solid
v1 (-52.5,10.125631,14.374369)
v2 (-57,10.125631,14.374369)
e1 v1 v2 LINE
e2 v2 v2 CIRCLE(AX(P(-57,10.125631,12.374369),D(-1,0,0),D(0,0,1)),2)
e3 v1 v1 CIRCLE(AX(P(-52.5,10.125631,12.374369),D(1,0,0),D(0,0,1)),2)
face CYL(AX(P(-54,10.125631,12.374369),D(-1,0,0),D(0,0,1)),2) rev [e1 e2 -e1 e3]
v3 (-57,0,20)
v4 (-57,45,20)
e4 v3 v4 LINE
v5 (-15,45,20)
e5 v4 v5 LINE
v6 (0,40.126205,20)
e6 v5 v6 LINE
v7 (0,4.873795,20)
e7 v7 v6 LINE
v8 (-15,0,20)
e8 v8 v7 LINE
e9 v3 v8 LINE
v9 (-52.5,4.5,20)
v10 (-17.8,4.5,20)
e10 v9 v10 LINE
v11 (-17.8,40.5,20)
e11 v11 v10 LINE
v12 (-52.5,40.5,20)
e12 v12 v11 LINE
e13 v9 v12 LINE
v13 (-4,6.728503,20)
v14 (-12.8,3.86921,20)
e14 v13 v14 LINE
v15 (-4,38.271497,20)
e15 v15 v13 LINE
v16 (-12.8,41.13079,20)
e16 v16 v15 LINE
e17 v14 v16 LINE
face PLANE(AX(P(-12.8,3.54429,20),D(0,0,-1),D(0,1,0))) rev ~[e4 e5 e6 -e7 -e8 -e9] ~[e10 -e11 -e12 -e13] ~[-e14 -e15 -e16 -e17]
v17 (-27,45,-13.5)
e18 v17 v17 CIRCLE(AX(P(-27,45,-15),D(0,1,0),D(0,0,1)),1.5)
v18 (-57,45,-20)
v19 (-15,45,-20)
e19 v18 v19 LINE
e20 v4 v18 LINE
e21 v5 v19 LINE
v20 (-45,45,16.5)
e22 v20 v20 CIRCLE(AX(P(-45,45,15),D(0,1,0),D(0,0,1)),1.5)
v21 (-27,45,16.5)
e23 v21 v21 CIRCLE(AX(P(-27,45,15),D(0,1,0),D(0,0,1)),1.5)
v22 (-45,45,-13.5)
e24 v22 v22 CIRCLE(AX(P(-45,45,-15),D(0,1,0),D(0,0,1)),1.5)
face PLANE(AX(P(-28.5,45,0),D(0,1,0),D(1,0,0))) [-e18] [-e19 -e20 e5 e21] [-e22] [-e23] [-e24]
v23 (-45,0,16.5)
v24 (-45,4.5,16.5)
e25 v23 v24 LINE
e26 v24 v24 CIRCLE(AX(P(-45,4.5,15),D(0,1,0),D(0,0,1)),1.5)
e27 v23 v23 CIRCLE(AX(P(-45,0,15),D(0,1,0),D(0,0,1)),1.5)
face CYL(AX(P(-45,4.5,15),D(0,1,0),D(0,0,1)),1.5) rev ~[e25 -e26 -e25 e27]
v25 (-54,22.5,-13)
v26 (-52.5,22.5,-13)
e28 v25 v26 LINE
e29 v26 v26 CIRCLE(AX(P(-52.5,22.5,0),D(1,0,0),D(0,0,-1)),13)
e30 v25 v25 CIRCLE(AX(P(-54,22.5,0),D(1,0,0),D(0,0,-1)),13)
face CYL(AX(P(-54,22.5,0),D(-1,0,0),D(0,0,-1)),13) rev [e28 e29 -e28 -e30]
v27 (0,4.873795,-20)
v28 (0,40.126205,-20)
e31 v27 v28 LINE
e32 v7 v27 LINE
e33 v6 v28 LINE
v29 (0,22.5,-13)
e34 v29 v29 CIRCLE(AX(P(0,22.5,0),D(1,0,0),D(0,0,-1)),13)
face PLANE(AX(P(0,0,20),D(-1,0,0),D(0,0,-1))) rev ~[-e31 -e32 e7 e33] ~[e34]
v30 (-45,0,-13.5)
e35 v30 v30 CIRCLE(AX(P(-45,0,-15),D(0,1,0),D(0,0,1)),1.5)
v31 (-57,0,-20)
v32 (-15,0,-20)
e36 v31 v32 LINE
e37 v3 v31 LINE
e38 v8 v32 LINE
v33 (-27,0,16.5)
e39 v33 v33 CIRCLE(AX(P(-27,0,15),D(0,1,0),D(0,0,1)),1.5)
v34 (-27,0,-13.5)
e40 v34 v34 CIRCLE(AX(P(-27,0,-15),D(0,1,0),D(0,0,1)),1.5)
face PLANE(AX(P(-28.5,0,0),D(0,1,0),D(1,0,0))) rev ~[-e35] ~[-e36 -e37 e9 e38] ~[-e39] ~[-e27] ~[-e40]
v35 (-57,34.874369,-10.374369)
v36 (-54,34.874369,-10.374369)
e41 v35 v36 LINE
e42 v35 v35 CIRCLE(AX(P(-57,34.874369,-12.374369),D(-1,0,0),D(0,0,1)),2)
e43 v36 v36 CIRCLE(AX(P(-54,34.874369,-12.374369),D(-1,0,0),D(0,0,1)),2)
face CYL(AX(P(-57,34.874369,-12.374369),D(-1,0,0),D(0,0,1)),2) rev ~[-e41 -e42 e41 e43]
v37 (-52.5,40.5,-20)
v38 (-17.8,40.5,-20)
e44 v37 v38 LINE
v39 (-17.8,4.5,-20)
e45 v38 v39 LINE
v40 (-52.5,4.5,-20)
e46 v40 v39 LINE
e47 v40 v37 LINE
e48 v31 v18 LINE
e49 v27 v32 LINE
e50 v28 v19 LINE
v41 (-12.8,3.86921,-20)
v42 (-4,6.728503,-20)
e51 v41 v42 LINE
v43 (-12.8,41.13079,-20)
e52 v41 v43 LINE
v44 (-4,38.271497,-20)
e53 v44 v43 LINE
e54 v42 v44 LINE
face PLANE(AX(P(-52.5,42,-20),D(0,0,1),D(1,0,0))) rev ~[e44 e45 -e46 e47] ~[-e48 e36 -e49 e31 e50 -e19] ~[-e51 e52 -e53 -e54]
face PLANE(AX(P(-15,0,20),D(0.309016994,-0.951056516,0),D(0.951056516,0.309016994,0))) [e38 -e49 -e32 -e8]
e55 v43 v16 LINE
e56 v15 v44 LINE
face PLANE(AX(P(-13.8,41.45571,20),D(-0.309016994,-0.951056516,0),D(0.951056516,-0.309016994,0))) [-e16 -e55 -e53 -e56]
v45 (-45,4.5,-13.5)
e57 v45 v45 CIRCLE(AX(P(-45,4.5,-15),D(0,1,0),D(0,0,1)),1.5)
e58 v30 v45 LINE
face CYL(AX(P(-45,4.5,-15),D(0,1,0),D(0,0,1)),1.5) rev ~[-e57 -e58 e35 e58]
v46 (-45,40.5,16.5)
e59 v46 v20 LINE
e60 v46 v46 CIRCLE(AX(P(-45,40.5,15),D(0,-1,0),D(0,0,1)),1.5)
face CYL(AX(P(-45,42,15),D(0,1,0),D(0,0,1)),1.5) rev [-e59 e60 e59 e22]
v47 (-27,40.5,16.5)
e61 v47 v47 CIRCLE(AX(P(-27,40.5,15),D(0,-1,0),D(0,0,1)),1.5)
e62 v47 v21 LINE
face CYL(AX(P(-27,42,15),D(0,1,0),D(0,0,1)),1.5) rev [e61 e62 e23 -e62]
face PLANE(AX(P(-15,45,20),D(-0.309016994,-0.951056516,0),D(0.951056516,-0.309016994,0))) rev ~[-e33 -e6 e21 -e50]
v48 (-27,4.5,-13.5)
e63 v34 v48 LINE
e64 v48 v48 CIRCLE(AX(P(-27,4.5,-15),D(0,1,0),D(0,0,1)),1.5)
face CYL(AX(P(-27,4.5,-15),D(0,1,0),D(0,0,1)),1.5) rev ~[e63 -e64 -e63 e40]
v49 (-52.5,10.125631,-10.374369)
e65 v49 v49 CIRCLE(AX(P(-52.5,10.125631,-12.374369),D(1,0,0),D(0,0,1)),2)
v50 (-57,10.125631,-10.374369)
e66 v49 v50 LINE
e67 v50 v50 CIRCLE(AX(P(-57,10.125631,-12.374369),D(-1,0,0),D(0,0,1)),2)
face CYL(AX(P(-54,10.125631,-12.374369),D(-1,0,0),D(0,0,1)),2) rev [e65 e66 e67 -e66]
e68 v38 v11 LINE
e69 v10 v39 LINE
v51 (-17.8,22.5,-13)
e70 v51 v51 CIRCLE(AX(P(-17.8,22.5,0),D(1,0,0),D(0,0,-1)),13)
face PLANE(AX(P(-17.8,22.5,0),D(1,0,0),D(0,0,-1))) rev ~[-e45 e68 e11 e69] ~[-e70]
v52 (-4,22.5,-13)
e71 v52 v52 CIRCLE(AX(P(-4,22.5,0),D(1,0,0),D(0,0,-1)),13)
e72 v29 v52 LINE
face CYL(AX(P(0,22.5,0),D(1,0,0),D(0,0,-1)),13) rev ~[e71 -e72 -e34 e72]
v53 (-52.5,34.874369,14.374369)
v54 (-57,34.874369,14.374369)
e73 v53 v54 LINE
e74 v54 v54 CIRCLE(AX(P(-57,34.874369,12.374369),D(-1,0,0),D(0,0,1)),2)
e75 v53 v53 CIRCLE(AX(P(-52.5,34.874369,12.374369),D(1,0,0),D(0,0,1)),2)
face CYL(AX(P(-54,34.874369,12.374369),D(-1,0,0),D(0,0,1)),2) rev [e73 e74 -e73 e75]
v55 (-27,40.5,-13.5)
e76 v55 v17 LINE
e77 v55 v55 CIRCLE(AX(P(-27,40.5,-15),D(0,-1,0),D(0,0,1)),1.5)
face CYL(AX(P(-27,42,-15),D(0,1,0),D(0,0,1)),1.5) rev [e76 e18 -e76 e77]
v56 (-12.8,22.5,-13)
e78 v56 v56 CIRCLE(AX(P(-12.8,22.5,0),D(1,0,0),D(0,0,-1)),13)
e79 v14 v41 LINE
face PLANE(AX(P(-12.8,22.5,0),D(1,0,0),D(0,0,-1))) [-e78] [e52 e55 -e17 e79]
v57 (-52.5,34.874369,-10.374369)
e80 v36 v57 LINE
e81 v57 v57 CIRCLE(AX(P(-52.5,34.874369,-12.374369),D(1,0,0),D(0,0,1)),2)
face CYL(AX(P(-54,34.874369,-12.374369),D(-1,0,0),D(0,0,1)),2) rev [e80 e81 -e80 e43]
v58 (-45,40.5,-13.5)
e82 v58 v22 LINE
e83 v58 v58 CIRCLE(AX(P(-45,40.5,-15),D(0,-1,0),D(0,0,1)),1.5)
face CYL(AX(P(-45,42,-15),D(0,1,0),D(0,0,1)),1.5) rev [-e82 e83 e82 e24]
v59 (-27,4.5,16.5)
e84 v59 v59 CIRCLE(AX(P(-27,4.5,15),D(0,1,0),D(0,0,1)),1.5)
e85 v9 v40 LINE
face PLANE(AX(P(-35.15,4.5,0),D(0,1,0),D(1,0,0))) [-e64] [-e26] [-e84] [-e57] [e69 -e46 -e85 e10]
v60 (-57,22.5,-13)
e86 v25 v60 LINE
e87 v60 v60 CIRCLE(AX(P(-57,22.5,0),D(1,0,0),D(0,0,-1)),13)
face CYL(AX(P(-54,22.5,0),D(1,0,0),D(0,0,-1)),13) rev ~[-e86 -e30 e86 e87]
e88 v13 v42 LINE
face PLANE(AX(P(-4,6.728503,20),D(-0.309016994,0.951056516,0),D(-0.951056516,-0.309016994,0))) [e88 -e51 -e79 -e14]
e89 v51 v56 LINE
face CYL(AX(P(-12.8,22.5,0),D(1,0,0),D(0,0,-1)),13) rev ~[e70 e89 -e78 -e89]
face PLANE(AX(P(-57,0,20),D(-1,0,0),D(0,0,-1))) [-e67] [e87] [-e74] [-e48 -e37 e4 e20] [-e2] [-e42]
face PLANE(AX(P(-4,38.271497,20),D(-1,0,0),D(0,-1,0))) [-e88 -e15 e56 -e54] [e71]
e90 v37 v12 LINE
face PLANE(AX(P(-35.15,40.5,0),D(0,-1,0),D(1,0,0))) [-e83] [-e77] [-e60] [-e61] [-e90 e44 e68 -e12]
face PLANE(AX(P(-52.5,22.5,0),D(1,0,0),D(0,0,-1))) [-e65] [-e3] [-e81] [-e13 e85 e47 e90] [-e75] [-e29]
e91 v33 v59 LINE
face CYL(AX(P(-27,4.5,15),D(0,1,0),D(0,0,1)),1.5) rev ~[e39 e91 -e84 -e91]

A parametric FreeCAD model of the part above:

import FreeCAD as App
import Part
import Sketcher
Q = App.Units.Quantity

doc = App.newDocument("Part")
body = doc.addObject("PartDesign::Body", "Body")

# Sketch on XZ plane
sketch1 = body.newObject("Sketcher::SketchObject", "Sketch")
sketch1.AttachmentSupport = (doc.getObject("XZ_Plane"), [""])
sketch1.MapMode = "FlatFace"
sketch1.addGeometry(Part.LineSegment(App.Vector(-57, -20, 0), App.Vector(-57, 20, 0)), False)
sketch1.addGeometry(Part.LineSegment(App.Vector(-57, 20, 0), App.Vector(0, 20, 0)), False)
sketch1.addGeometry(Part.LineSegment(App.Vector(0, 20, 0), App.Vector(0, -20, 0)), False)
sketch1.addGeometry(Part.LineSegment(App.Vector(0, -20, 0), App.Vector(-57, -20, 0)), False)
sketch1.addConstraint(Sketcher.Constraint("Coincident", 0, 2, 1, 1))
sketch1.addConstraint(Sketcher.Constraint("Coincident", 1, 2, 2, 1))
sketch1.addConstraint(Sketcher.Constraint("Coincident", 2, 2, 3, 1))
sketch1.addConstraint(Sketcher.Constraint("Coincident", 3, 2, 0, 1))
sketch1.addConstraint(Sketcher.Constraint("Vertical", 0))
sketch1.addConstraint(Sketcher.Constraint("Horizontal", 1))
sketch1.addConstraint(Sketcher.Constraint("Vertical", 2))
sketch1.addConstraint(Sketcher.Constraint("Horizontal", 3))
sketch1.addConstraint(Sketcher.Constraint("Symmetric", 1, 2, 2, 2, -1, 1))
sketch1.addConstraint(Sketcher.Constraint("DistanceX", 1, 1, 1, 2, Q("57 mm")))
sketch1.addConstraint(Sketcher.Constraint("DistanceY", 0, 1, 0, 2, Q("40 mm")))
pad1 = body.newObject("PartDesign::Pad", "Pad")
pad1.Profile = sketch1
pad1.Length = 45
pad1.Reversed = True

# Sketch on YZ plane
sketch2 = body.newObject("Sketcher::SketchObject", "Sketch001")
sketch2.AttachmentSupport = (doc.getObject("YZ_Plane"), [""])
sketch2.MapMode = "FlatFace"
sketch2.addGeometry(Part.Circle(App.Vector(22.5, 0, 0), App.Vector(0, 0, 1), 13), False)
sketch2.addConstraint(Sketcher.Constraint("PointOnObject", 0, 3, -1))
sketch2.addConstraint(Sketcher.Constraint("Diameter", 0, Q("26 mm")))
sketch2.addConstraint(Sketcher.Constraint("DistanceX", -1, 1, 0, 3, Q("22.5 mm")))
pocket1 = body.newObject("PartDesign::Pocket", "Pocket")
pocket1.Profile = sketch2
pocket1.Length = 17.8

# Sketch on YZ plane
sketch3 = body.newObject("Sketcher::SketchObject", "Sketch002")
sketch3.AttachmentSupport = (doc.getObject("YZ_Plane"), [""])
sketch3.MapMode = "FlatFace"
sketch3.AttachmentOffset = App.Placement(App.Vector(0, 0, -17.8), App.Rotation())
sketch3.addGeometry(Part.LineSegment(App.Vector(3, 22, 0), App.Vector(3, -22, 0)), False)
sketch3.addGeometry(Part.LineSegment(App.Vector(3, -22, 0), App.Vector(42, -22, 0)), False)
sketch3.addGeometry(Part.LineSegment(App.Vector(42, -22, 0), App.Vector(42, 22, 0)), False)
sketch3.addGeometry(Part.LineSegment(App.Vector(42, 22, 0), App.Vector(3, 22, 0)), False)
sketch3.addConstraint(Sketcher.Constraint("Coincident", 0, 2, 1, 1))
sketch3.addConstraint(Sketcher.Constraint("Coincident", 1, 2, 2, 1))
sketch3.addConstraint(Sketcher.Constraint("Coincident", 2, 2, 3, 1))
sketch3.addConstraint(Sketcher.Constraint("Coincident", 3, 2, 0, 1))
sketch3.addConstraint(Sketcher.Constraint("Vertical", 0))
sketch3.addConstraint(Sketcher.Constraint("Horizontal", 1))
sketch3.addConstraint(Sketcher.Constraint("Vertical", 2))
sketch3.addConstraint(Sketcher.Constraint("Horizontal", 3))
sketch3.addConstraint(Sketcher.Constraint("DistanceX", 1, 1, 1, 2, Q("39 mm")))
sketch3.addConstraint(Sketcher.Constraint("DistanceY", 0, 2, 0, 1, Q("44 mm")))
sketch3.addConstraint(Sketcher.Constraint("DistanceX", -1, 1, 0, 2, Q("3 mm")))
sketch3.addConstraint(Sketcher.Constraint("DistanceY", 0, 2, -1, 1, Q("22 mm")))
pocket2 = body.newObject("PartDesign::Pocket", "Pocket001")
pocket2.Profile = sketch3
pocket2.Length = 36.2

# Sketch on YZ plane
sketch4 = body.newObject("Sketcher::SketchObject", "Sketch003")
sketch4.AttachmentSupport = (doc.getObject("YZ_Plane"), [""])
sketch4.MapMode = "FlatFace"
sketch4.AttachmentOffset = App.Placement(App.Vector(0, 0, -54), App.Rotation())
sketch4.addGeometry(Part.Circle(App.Vector(22.5, 0, 0), App.Vector(0, 0, 1), 13), False)
sketch4.addConstraint(Sketcher.Constraint("PointOnObject", 0, 3, -1))
sketch4.addConstraint(Sketcher.Constraint("Diameter", 0, Q("26 mm")))
sketch4.addConstraint(Sketcher.Constraint("DistanceX", -1, 1, 0, 3, Q("22.5 mm")))
pocket3 = body.newObject("PartDesign::Pocket", "Pocket002")
pocket3.Profile = sketch4
pocket3.Length = 31.1

# Sketch on XY plane
sketch5 = body.newObject("Sketcher::SketchObject", "Sketch004")
sketch5.AttachmentSupport = (doc.getObject("XY_Plane"), [""])
sketch5.MapMode = "FlatFace"
sketch5.AttachmentOffset = App.Placement(App.Vector(0, 0, 20), App.Rotation())
sketch5.addGeometry(Part.LineSegment(App.Vector(-15, 45, 0), App.Vector(0, 40.126205, 0)), False)
sketch5.addGeometry(Part.LineSegment(App.Vector(0, 40.126205, 0), App.Vector(0, 45, 0)), False)
sketch5.addGeometry(Part.LineSegment(App.Vector(0, 45, 0), App.Vector(-15, 45, 0)), False)
sketch5.addGeometry(Part.LineSegment(App.Vector(-15, 0, 0), App.Vector(0, 0, 0)), False)
sketch5.addGeometry(Part.LineSegment(App.Vector(0, 0, 0), App.Vector(0, 4.873795, 0)), False)
sketch5.addGeometry(Part.LineSegment(App.Vector(0, 4.873795, 0), App.Vector(-15, 0, 0)), False)
sketch5.addConstraint(Sketcher.Constraint("Coincident", 0, 2, 1, 1))
sketch5.addConstraint(Sketcher.Constraint("Coincident", 1, 2, 2, 1))
sketch5.addConstraint(Sketcher.Constraint("Coincident", 2, 2, 0, 1))
sketch5.addConstraint(Sketcher.Constraint("Coincident", 3, 2, 4, 1))
sketch5.addConstraint(Sketcher.Constraint("Coincident", 4, 2, 5, 1))
sketch5.addConstraint(Sketcher.Constraint("Coincident", 5, 2, 3, 1))
sketch5.addConstraint(Sketcher.Constraint("Vertical", 1))
sketch5.addConstraint(Sketcher.Constraint("Horizontal", 2))
sketch5.addConstraint(Sketcher.Constraint("Horizontal", 3))
sketch5.addConstraint(Sketcher.Constraint("Vertical", 4))
sketch5.addConstraint(Sketcher.Constraint("Coincident", 3, 2, -1, 1))
sketch5.addConstraint(Sketcher.Constraint("PointOnObject", 0, 2, -2))
sketch5.addConstraint(Sketcher.Constraint("Vertical", 2, 2, 5, 2))
sketch5.addConstraint(Sketcher.Constraint("Equal", 1, 4))
sketch5.addConstraint(Sketcher.Constraint("DistanceX", 2, 2, 2, 1, Q("15 mm")))
sketch5.addConstraint(Sketcher.Constraint("Angle", 0, Q("-18 deg")))
sketch5.addConstraint(Sketcher.Constraint("DistanceY", -1, 1, 1, 2, Q("45 mm")))
pocket4 = body.newObject("PartDesign::Pocket", "Pocket003")
pocket4.Profile = sketch5
pocket4.Type = "ThroughAll"

# Sketch on YZ plane
sketch6 = body.newObject("Sketcher::SketchObject", "Sketch005")
sketch6.AttachmentSupport = (doc.getObject("YZ_Plane"), [""])
sketch6.MapMode = "FlatFace"
sketch6.AttachmentOffset = App.Placement(App.Vector(0, 0, -57), App.Rotation())
sketch6.addGeometry(Part.Circle(App.Vector(34.874369, -12.374369, 0), App.Vector(0, 0, 1), 2), False)
sketch6.addGeometry(Part.Circle(App.Vector(34.874369, 12.374369, 0), App.Vector(0, 0, 1), 2), False)
sketch6.addGeometry(Part.Circle(App.Vector(10.125631, 12.374369, 0), App.Vector(0, 0, 1), 2), False)
sketch6.addGeometry(Part.Circle(App.Vector(10.125631, -12.374369, 0), App.Vector(0, 0, 1), 2), False)
sketch6.addConstraint(Sketcher.Constraint("Equal", 0, 1))
sketch6.addConstraint(Sketcher.Constraint("Equal", 1, 2))
sketch6.addConstraint(Sketcher.Constraint("Equal", 2, 3))
sketch6.addConstraint(Sketcher.Constraint("Symmetric", 0, 3, 1, 3, -1))
sketch6.addConstraint(Sketcher.Constraint("Symmetric", 2, 3, 3, 3, -1))
sketch6.addConstraint(Sketcher.Constraint("Horizontal", 1, 3, 2, 3))
sketch6.addConstraint(Sketcher.Constraint("Diameter", 0, Q("4 mm")))
sketch6.addConstraint(Sketcher.Constraint("DistanceX", -1, 1, 0, 3, Q("34.874369 mm")))
sketch6.addConstraint(Sketcher.Constraint("DistanceY", 0, 3, -1, 1, Q("12.374369 mm")))
sketch6.addConstraint(Sketcher.Constraint("DistanceX", -1, 1, 2, 3, Q("10.125631 mm")))
pocket5 = body.newObject("PartDesign::Pocket", "Pocket004")
pocket5.Profile = sketch6
pocket5.Length = 8
pocket5.Reversed = True

# Sketch on XZ plane
sketch7 = body.newObject("Sketcher::SketchObject", "Sketch006")
sketch7.AttachmentSupport = (doc.getObject("XZ_Plane"), [""])
sketch7.MapMode = "FlatFace"
sketch7.AttachmentOffset = App.Placement(App.Vector(0, 0, -45), App.Rotation())
sketch7.addGeometry(Part.Circle(App.Vector(-45, -15, 0), App.Vector(0, 0, 1), 1.5), False)
sketch7.addGeometry(Part.Circle(App.Vector(-27, -15, 0), App.Vector(0, 0, 1), 1.5), False)
sketch7.addGeometry(Part.Circle(App.Vector(-27, 15, 0), App.Vector(0, 0, 1), 1.5), False)
sketch7.addGeometry(Part.Circle(App.Vector(-45, 15, 0), App.Vector(0, 0, 1), 1.5), False)
sketch7.addConstraint(Sketcher.Constraint("Equal", 0, 1))
sketch7.addConstraint(Sketcher.Constraint("Equal", 1, 2))
sketch7.addConstraint(Sketcher.Constraint("Equal", 2, 3))
sketch7.addConstraint(Sketcher.Constraint("Symmetric", 1, 3, 2, 3, -1))
sketch7.addConstraint(Sketcher.Constraint("Symmetric", 0, 3, 3, 3, -1))
sketch7.addConstraint(Sketcher.Constraint("Horizontal", 0, 3, 1, 3))
sketch7.addConstraint(Sketcher.Constraint("Diameter", 0, Q("3 mm")))
sketch7.addConstraint(Sketcher.Constraint("DistanceX", 0, 3, -1, 1, Q("45 mm")))
sketch7.addConstraint(Sketcher.Constraint("DistanceY", 0, 3, -1, 1, Q("15 mm")))
sketch7.addConstraint(Sketcher.Constraint("DistanceX", 1, 3, -1, 1, Q("27 mm")))
pocket6 = body.newObject("PartDesign::Pocket", "Pocket005")
pocket6.Profile = sketch7
pocket6.Type = "ThroughAll"
pocket6.Reversed = True

# Sketch on XY plane
sketch8 = body.newObject("Sketcher::SketchObject", "Sketch007")
sketch8.AttachmentSupport = (doc.getObject("XY_Plane"), [""])
sketch8.MapMode = "FlatFace"
sketch8.AttachmentOffset = App.Placement(App.Vector(0, 0, 20), App.Rotation())
sketch8.addGeometry(Part.LineSegment(App.Vector(-4, 38.271497, 0), App.Vector(-13.8, 41.45571, 0)), False)
sketch8.addGeometry(Part.LineSegment(App.Vector(-13.8, 41.45571, 0), App.Vector(-13.8, 3.54429, 0)), False)
sketch8.addGeometry(Part.LineSegment(App.Vector(-13.8, 3.54429, 0), App.Vector(-4, 6.728503, 0)), False)
sketch8.addGeometry(Part.LineSegment(App.Vector(-4, 6.728503, 0), App.Vector(-4, 38.271497, 0)), False)
sketch8.addConstraint(Sketcher.Constraint("Coincident", 0, 2, 1, 1))
sketch8.addConstraint(Sketcher.Constraint("Coincident", 1, 2, 2, 1))
sketch8.addConstraint(Sketcher.Constraint("Coincident", 2, 2, 3, 1))
sketch8.addConstraint(Sketcher.Constraint("Coincident", 3, 2, 0, 1))
sketch8.addConstraint(Sketcher.Constraint("Vertical", 1))
sketch8.addConstraint(Sketcher.Constraint("Vertical", 3))
sketch8.addConstraint(Sketcher.Constraint("Equal", 0, 2))
sketch8.addConstraint(Sketcher.Constraint("Angle", 0, Q("162 deg")))
sketch8.addConstraint(Sketcher.Constraint("DistanceX", 2, 2, -1, 1, Q("4 mm")))
sketch8.addConstraint(Sketcher.Constraint("DistanceX", 0, 2, -1, 1, Q("13.8 mm")))
sketch8.addConstraint(Sketcher.Constraint("DistanceY", 1, 2, 1, 1, Q("37.911419 mm")))
sketch8.addConstraint(Sketcher.Constraint("DistanceY", -1, 1, 0, 2, Q("41.45571 mm")))
pocket7 = body.newObject("PartDesign::Pocket", "Pocket006")
pocket7.Profile = sketch8
pocket7.Length = 94

# Sketch on YZ plane
sketch9 = body.newObject("Sketcher::SketchObject", "Sketch008")
sketch9.AttachmentSupport = (doc.getObject("YZ_Plane"), [""])
sketch9.MapMode = "FlatFace"
sketch9.AttachmentOffset = App.Placement(App.Vector(0, 0, -54), App.Rotation())
sketch9.addGeometry(Part.LineSegment(App.Vector(42, 20, 0), App.Vector(3, 20, 0)), False)
sketch9.addGeometry(Part.LineSegment(App.Vector(3, 20, 0), App.Vector(3, -20, 0)), False)
sketch9.addGeometry(Part.LineSegment(App.Vector(3, -20, 0), App.Vector(42, -20, 0)), False)
sketch9.addGeometry(Part.LineSegment(App.Vector(42, -20, 0), App.Vector(42, 20, 0)), False)
sketch9.addGeometry(Part.Circle(App.Vector(10.125631, 12.374369, 0), App.Vector(0, 0, 1), 2), False)
sketch9.addGeometry(Part.Circle(App.Vector(10.125631, -12.374369, 0), App.Vector(0, 0, 1), 2), False)
sketch9.addGeometry(Part.Circle(App.Vector(34.874369, 12.374369, 0), App.Vector(0, 0, 1), 2), False)
sketch9.addGeometry(Part.Circle(App.Vector(22.5, 0, 0), App.Vector(0, 0, 1), 13), False)
sketch9.addGeometry(Part.Circle(App.Vector(34.874369, -12.374369, 0), App.Vector(0, 0, 1), 2), False)
sketch9.addConstraint(Sketcher.Constraint("Coincident", 0, 2, 1, 1))
sketch9.addConstraint(Sketcher.Constraint("Coincident", 1, 2, 2, 1))
sketch9.addConstraint(Sketcher.Constraint("Coincident", 2, 2, 3, 1))
sketch9.addConstraint(Sketcher.Constraint("Coincident", 3, 2, 0, 1))
sketch9.addConstraint(Sketcher.Constraint("Horizontal", 0))
sketch9.addConstraint(Sketcher.Constraint("Vertical", 1))
sketch9.addConstraint(Sketcher.Constraint("Horizontal", 2))
sketch9.addConstraint(Sketcher.Constraint("Vertical", 3))
sketch9.addConstraint(Sketcher.Constraint("Equal", 4, 5))
sketch9.addConstraint(Sketcher.Constraint("Equal", 5, 6))
sketch9.addConstraint(Sketcher.Constraint("Equal", 6, 8))
sketch9.addConstraint(Sketcher.Constraint("Symmetric", 4, 3, 5, 3, -1))
sketch9.addConstraint(Sketcher.Constraint("Symmetric", 6, 3, 8, 3, -1))
sketch9.addConstraint(Sketcher.Constraint("PointOnObject", 7, 3, -1))
sketch9.addConstraint(Sketcher.Constraint("Horizontal", 4, 3, 6, 3))
sketch9.addConstraint(Sketcher.Constraint("Diameter", 4, Q("4 mm")))
sketch9.addConstraint(Sketcher.Constraint("Diameter", 7, Q("26 mm")))
sketch9.addConstraint(Sketcher.Constraint("DistanceX", 0, 2, 0, 1, Q("39 mm")))
sketch9.addConstraint(Sketcher.Constraint("DistanceY", 1, 2, 1, 1, Q("40 mm")))
sketch9.addConstraint(Sketcher.Constraint("DistanceX", -1, 1, 0, 2, Q("3 mm")))
sketch9.addConstraint(Sketcher.Constraint("DistanceY", -1, 1, 0, 2, Q("20 mm")))
sketch9.addConstraint(Sketcher.Constraint("DistanceX", -1, 1, 7, 3, Q("22.5 mm")))
sketch9.addConstraint(Sketcher.Constraint("DistanceX", -1, 1, 4, 3, Q("10.125631 mm")))
sketch9.addConstraint(Sketcher.Constraint("DistanceY", -1, 1, 4, 3, Q("12.374369 mm")))
sketch9.addConstraint(Sketcher.Constraint("DistanceX", -1, 1, 6, 3, Q("34.874369 mm")))
pad2 = body.newObject("PartDesign::Pad", "Pad001")
pad2.Profile = sketch9
pad2.Length = 1.5

# Sketch on XZ plane
sketch10 = body.newObject("Sketcher::SketchObject", "Sketch009")
sketch10.AttachmentSupport = (doc.getObject("XZ_Plane"), [""])
sketch10.MapMode = "FlatFace"
sketch10.AttachmentOffset = App.Placement(App.Vector(0, 0, -4.5), App.Rotation())
sketch10.addGeometry(Part.LineSegment(App.Vector(-52.5, -20, 0), App.Vector(-52.5, 20, 0)), False)
sketch10.addGeometry(Part.LineSegment(App.Vector(-52.5, 20, 0), App.Vector(-17.8, 20, 0)), False)
sketch10.addGeometry(Part.LineSegment(App.Vector(-17.8, 20, 0), App.Vector(-17.8, -20, 0)), False)
sketch10.addGeometry(Part.LineSegment(App.Vector(-17.8, -20, 0), App.Vector(-52.5, -20, 0)), False)
sketch10.addGeometry(Part.Circle(App.Vector(-45, 15, 0), App.Vector(0, 0, 1), 1.5), False)
sketch10.addGeometry(Part.Circle(App.Vector(-27, 15, 0), App.Vector(0, 0, 1), 1.5), False)
sketch10.addGeometry(Part.Circle(App.Vector(-45, -15, 0), App.Vector(0, 0, 1), 1.5), False)
sketch10.addGeometry(Part.Circle(App.Vector(-27, -15, 0), App.Vector(0, 0, 1), 1.5), False)
sketch10.addConstraint(Sketcher.Constraint("Coincident", 0, 2, 1, 1))
sketch10.addConstraint(Sketcher.Constraint("Coincident", 1, 2, 2, 1))
sketch10.addConstraint(Sketcher.Constraint("Coincident", 2, 2, 3, 1))
sketch10.addConstraint(Sketcher.Constraint("Coincident", 3, 2, 0, 1))
sketch10.addConstraint(Sketcher.Constraint("Vertical", 0))
sketch10.addConstraint(Sketcher.Constraint("Horizontal", 1))
sketch10.addConstraint(Sketcher.Constraint("Vertical", 2))
sketch10.addConstraint(Sketcher.Constraint("Horizontal", 3))
sketch10.addConstraint(Sketcher.Constraint("Equal", 4, 5))
sketch10.addConstraint(Sketcher.Constraint("Equal", 5, 6))
sketch10.addConstraint(Sketcher.Constraint("Equal", 6, 7))
sketch10.addConstraint(Sketcher.Constraint("Symmetric", 4, 3, 6, 3, -1))
sketch10.addConstraint(Sketcher.Constraint("Symmetric", 5, 3, 7, 3, -1))
sketch10.addConstraint(Sketcher.Constraint("Horizontal", 4, 3, 5, 3))
sketch10.addConstraint(Sketcher.Constraint("Diameter", 4, Q("3 mm")))
sketch10.addConstraint(Sketcher.Constraint("DistanceY", 0, 1, 0, 2, Q("40 mm")))
sketch10.addConstraint(Sketcher.Constraint("DistanceX", 1, 1, 1, 2, Q("34.7 mm")))
sketch10.addConstraint(Sketcher.Constraint("DistanceX", 4, 3, -1, 1, Q("45 mm")))
sketch10.addConstraint(Sketcher.Constraint("DistanceY", -1, 1, 4, 3, Q("15 mm")))
sketch10.addConstraint(Sketcher.Constraint("DistanceX", 5, 3, -1, 1, Q("27 mm")))
sketch10.addConstraint(Sketcher.Constraint("DistanceY", -1, 1, 0, 2, Q("20 mm")))
sketch10.addConstraint(Sketcher.Constraint("DistanceX", 0, 2, -1, 1, Q("52.5 mm")))
pad3 = body.newObject("PartDesign::Pad", "Pad002")
pad3.Profile = sketch10
pad3.Length = 1.5

# Sketch on XZ plane
sketch11 = body.newObject("Sketcher::SketchObject", "Sketch010")
sketch11.AttachmentSupport = (doc.getObject("XZ_Plane"), [""])
sketch11.MapMode = "FlatFace"
sketch11.AttachmentOffset = App.Placement(App.Vector(0, 0, -42), App.Rotation())
sketch11.addGeometry(Part.LineSegment(App.Vector(-52.5, 20, 0), App.Vector(-52.5, -20, 0)), False)
sketch11.addGeometry(Part.LineSegment(App.Vector(-52.5, -20, 0), App.Vector(-17.8, -20, 0)), False)
sketch11.addGeometry(Part.LineSegment(App.Vector(-17.8, -20, 0), App.Vector(-17.8, 20, 0)), False)
sketch11.addGeometry(Part.LineSegment(App.Vector(-17.8, 20, 0), App.Vector(-52.5, 20, 0)), False)
sketch11.addGeometry(Part.Circle(App.Vector(-45, -15, 0), App.Vector(0, 0, 1), 1.5), False)
sketch11.addGeometry(Part.Circle(App.Vector(-27, -15, 0), App.Vector(0, 0, 1), 1.5), False)
sketch11.addGeometry(Part.Circle(App.Vector(-45, 15, 0), App.Vector(0, 0, 1), 1.5), False)
sketch11.addGeometry(Part.Circle(App.Vector(-27, 15, 0), App.Vector(0, 0, 1), 1.5), False)
sketch11.addConstraint(Sketcher.Constraint("Coincident", 0, 2, 1, 1))
sketch11.addConstraint(Sketcher.Constraint("Coincident", 1, 2, 2, 1))
sketch11.addConstraint(Sketcher.Constraint("Coincident", 2, 2, 3, 1))
sketch11.addConstraint(Sketcher.Constraint("Coincident", 3, 2, 0, 1))
sketch11.addConstraint(Sketcher.Constraint("Vertical", 0))
sketch11.addConstraint(Sketcher.Constraint("Horizontal", 1))
sketch11.addConstraint(Sketcher.Constraint("Vertical", 2))
sketch11.addConstraint(Sketcher.Constraint("Horizontal", 3))
sketch11.addConstraint(Sketcher.Constraint("Equal", 4, 5))
sketch11.addConstraint(Sketcher.Constraint("Equal", 5, 6))
sketch11.addConstraint(Sketcher.Constraint("Equal", 6, 7))
sketch11.addConstraint(Sketcher.Constraint("Symmetric", 4, 3, 6, 3, -1))
sketch11.addConstraint(Sketcher.Constraint("Symmetric", 5, 3, 7, 3, -1))
sketch11.addConstraint(Sketcher.Constraint("Horizontal", 4, 3, 5, 3))
sketch11.addConstraint(Sketcher.Constraint("Diameter", 4, Q("3 mm")))
sketch11.addConstraint(Sketcher.Constraint("DistanceY", 0, 2, 0, 1, Q("40 mm")))
sketch11.addConstraint(Sketcher.Constraint("DistanceX", 1, 1, 1, 2, Q("34.7 mm")))
sketch11.addConstraint(Sketcher.Constraint("DistanceX", 4, 3, -1, 1, Q("45 mm")))
sketch11.addConstraint(Sketcher.Constraint("DistanceY", 4, 3, -1, 1, Q("15 mm")))
sketch11.addConstraint(Sketcher.Constraint("DistanceX", 5, 3, -1, 1, Q("27 mm")))
sketch11.addConstraint(Sketcher.Constraint("DistanceY", 0, 2, -1, 1, Q("20 mm")))
sketch11.addConstraint(Sketcher.Constraint("DistanceX", 0, 2, -1, 1, Q("52.5 mm")))
pad4 = body.newObject("PartDesign::Pad", "Pad003")
pad4.Profile = sketch11
pad4.Length = 1.5

# Sketch on YZ plane
sketch12 = body.newObject("Sketcher::SketchObject", "Sketch011")
sketch12.AttachmentSupport = (doc.getObject("YZ_Plane"), [""])
sketch12.MapMode = "FlatFace"
sketch12.AttachmentOffset = App.Placement(App.Vector(0, 0, -12.8), App.Rotation())
sketch12.addGeometry(Part.LineSegment(App.Vector(41.45571, 20, 0), App.Vector(3.54429, 20, 0)), False)
sketch12.addGeometry(Part.LineSegment(App.Vector(3.54429, 20, 0), App.Vector(3.54429, -20, 0)), False)
sketch12.addGeometry(Part.LineSegment(App.Vector(3.54429, -20, 0), App.Vector(41.45571, -20, 0)), False)
sketch12.addGeometry(Part.LineSegment(App.Vector(41.45571, -20, 0), App.Vector(41.45571, 20, 0)), False)
sketch12.addGeometry(Part.Circle(App.Vector(22.5, 0, 0), App.Vector(0, 0, 1), 13), False)
sketch12.addConstraint(Sketcher.Constraint("Coincident", 0, 2, 1, 1))
sketch12.addConstraint(Sketcher.Constraint("Coincident", 1, 2, 2, 1))
sketch12.addConstraint(Sketcher.Constraint("Coincident", 2, 2, 3, 1))
sketch12.addConstraint(Sketcher.Constraint("Coincident", 3, 2, 0, 1))
sketch12.addConstraint(Sketcher.Constraint("Horizontal", 0))
sketch12.addConstraint(Sketcher.Constraint("Vertical", 1))
sketch12.addConstraint(Sketcher.Constraint("Horizontal", 2))
sketch12.addConstraint(Sketcher.Constraint("Vertical", 3))
sketch12.addConstraint(Sketcher.Constraint("PointOnObject", 4, 3, -1))
sketch12.addConstraint(Sketcher.Constraint("Diameter", 4, Q("26 mm")))
sketch12.addConstraint(Sketcher.Constraint("DistanceY", 1, 2, 1, 1, Q("40 mm")))
sketch12.addConstraint(Sketcher.Constraint("DistanceY", -1, 1, 0, 2, Q("20 mm")))
sketch12.addConstraint(Sketcher.Constraint("DistanceX", -1, 1, 4, 3, Q("22.5 mm")))
sketch12.addConstraint(Sketcher.Constraint("DistanceX", 0, 2, 0, 1, Q("37.911419 mm")))
sketch12.addConstraint(Sketcher.Constraint("DistanceX", -1, 1, 0, 2, Q("3.54429 mm")))
pad5 = body.newObject("PartDesign::Pad", "Pad004")
pad5.Profile = sketch12
pad5.Length = 1
pad5.Reversed = True

doc.recompute()
